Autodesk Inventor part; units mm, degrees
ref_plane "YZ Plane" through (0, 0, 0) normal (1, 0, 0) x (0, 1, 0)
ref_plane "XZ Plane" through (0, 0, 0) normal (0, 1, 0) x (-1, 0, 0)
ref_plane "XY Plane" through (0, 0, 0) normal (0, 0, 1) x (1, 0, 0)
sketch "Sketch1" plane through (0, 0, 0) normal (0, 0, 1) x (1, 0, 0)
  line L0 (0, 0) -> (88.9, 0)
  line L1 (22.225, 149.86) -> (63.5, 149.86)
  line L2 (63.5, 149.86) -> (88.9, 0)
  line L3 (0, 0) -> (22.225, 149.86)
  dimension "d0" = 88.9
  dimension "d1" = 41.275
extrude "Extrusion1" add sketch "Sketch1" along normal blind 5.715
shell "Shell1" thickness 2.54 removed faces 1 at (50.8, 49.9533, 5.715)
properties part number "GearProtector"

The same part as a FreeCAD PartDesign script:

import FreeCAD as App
import Part
import Sketcher

V = App.Vector
Q = App.Units.Quantity


def faces_at(feature, points):
    """Names of the faces that lie closest to the given points."""
    faces = feature.Shape.Faces
    near = lambda p: min(range(len(faces)), key=lambda i: faces[i].distToShape(Part.Vertex(*p))[0])
    return sorted({f"Face{near(p) + 1}" for p in points})


def add_polygon(sketch, points):
    """Adds a closed chain of lines whose ends are joined by coincident constraints."""
    first, n = sketch.GeometryCount, len(points)
    for a, b in zip(points, points[1:] + points[:1]):
        sketch.addGeometry(Part.LineSegment(App.Vector(*a, 0), App.Vector(*b, 0)), False)
    for i in range(n):
        sketch.addConstraint(Sketcher.Constraint("Coincident", first + i, 2, first + (i + 1) % n, 1))

doc = App.newDocument("Part")
params = doc.addObject("Spreadsheet::Sheet", "Params")
for row, (alias, value) in enumerate([
    ("sketch1_width", "3.5 in"),
    ("sketch1_width2", "1.625 in"),
    ("pad1_length", "0.225 in"),
    ("thickness_wall", "0.1 in"),
], start=1):
    params.set(f"A{row}", alias)
    params.set(f"B{row}", "=" + value)
    params.setAlias(f"B{row}", alias)

body = doc.addObject("PartDesign::Body", "Body")

# Sketch on XY plane
sketch1 = doc.addObject("Sketcher::SketchObject", "Sketch")
body.addObject(sketch1)
sketch1.AttachmentSupport = (doc.XY_Plane, [""])
sketch1.MapMode = "FlatFace"
add_polygon(sketch1, [(22, 150), (0, 0), (89, 0), (64, 150)])  # lines 0-3
sketch1.addConstraint([
    Sketcher.Constraint("Horizontal", 1),
    Sketcher.Constraint("Horizontal", 3),
    Sketcher.Constraint("Coincident", 0, 2, -1, 1),
    Sketcher.Constraint("DistanceX", 1, 1, 1, 2, Q("3.5 in")),
    Sketcher.Constraint("DistanceX", 3, 2, 3, 1, Q("1.625 in")),
    Sketcher.Constraint("DistanceX", 2, 2, 1, 2, Q("1 in")),
    Sketcher.Constraint("DistanceY", -1, 1, 2, 2, Q("5.9 in")),
])
sketch1.setExpression("Constraints[7]", "Params.sketch1_width")
sketch1.setExpression("Constraints[8]", "Params.sketch1_width2")
pad1 = doc.addObject("PartDesign::Pad", "Pad")
body.addObject(pad1)
pad1.Profile = sketch1
pad1.setExpression("Length", "Params.pad1_length")
doc.recompute()

thickness = doc.addObject("PartDesign::Thickness", "Thickness")
body.addObject(thickness)
thickness.Base = (pad1, faces_at(pad1, [(50.8, 49.953, 5.715)]))
thickness.setExpression("Value", "Params.thickness_wall")
thickness.Reversed = True
thickness.Join = "Intersection"

doc.recompute()
